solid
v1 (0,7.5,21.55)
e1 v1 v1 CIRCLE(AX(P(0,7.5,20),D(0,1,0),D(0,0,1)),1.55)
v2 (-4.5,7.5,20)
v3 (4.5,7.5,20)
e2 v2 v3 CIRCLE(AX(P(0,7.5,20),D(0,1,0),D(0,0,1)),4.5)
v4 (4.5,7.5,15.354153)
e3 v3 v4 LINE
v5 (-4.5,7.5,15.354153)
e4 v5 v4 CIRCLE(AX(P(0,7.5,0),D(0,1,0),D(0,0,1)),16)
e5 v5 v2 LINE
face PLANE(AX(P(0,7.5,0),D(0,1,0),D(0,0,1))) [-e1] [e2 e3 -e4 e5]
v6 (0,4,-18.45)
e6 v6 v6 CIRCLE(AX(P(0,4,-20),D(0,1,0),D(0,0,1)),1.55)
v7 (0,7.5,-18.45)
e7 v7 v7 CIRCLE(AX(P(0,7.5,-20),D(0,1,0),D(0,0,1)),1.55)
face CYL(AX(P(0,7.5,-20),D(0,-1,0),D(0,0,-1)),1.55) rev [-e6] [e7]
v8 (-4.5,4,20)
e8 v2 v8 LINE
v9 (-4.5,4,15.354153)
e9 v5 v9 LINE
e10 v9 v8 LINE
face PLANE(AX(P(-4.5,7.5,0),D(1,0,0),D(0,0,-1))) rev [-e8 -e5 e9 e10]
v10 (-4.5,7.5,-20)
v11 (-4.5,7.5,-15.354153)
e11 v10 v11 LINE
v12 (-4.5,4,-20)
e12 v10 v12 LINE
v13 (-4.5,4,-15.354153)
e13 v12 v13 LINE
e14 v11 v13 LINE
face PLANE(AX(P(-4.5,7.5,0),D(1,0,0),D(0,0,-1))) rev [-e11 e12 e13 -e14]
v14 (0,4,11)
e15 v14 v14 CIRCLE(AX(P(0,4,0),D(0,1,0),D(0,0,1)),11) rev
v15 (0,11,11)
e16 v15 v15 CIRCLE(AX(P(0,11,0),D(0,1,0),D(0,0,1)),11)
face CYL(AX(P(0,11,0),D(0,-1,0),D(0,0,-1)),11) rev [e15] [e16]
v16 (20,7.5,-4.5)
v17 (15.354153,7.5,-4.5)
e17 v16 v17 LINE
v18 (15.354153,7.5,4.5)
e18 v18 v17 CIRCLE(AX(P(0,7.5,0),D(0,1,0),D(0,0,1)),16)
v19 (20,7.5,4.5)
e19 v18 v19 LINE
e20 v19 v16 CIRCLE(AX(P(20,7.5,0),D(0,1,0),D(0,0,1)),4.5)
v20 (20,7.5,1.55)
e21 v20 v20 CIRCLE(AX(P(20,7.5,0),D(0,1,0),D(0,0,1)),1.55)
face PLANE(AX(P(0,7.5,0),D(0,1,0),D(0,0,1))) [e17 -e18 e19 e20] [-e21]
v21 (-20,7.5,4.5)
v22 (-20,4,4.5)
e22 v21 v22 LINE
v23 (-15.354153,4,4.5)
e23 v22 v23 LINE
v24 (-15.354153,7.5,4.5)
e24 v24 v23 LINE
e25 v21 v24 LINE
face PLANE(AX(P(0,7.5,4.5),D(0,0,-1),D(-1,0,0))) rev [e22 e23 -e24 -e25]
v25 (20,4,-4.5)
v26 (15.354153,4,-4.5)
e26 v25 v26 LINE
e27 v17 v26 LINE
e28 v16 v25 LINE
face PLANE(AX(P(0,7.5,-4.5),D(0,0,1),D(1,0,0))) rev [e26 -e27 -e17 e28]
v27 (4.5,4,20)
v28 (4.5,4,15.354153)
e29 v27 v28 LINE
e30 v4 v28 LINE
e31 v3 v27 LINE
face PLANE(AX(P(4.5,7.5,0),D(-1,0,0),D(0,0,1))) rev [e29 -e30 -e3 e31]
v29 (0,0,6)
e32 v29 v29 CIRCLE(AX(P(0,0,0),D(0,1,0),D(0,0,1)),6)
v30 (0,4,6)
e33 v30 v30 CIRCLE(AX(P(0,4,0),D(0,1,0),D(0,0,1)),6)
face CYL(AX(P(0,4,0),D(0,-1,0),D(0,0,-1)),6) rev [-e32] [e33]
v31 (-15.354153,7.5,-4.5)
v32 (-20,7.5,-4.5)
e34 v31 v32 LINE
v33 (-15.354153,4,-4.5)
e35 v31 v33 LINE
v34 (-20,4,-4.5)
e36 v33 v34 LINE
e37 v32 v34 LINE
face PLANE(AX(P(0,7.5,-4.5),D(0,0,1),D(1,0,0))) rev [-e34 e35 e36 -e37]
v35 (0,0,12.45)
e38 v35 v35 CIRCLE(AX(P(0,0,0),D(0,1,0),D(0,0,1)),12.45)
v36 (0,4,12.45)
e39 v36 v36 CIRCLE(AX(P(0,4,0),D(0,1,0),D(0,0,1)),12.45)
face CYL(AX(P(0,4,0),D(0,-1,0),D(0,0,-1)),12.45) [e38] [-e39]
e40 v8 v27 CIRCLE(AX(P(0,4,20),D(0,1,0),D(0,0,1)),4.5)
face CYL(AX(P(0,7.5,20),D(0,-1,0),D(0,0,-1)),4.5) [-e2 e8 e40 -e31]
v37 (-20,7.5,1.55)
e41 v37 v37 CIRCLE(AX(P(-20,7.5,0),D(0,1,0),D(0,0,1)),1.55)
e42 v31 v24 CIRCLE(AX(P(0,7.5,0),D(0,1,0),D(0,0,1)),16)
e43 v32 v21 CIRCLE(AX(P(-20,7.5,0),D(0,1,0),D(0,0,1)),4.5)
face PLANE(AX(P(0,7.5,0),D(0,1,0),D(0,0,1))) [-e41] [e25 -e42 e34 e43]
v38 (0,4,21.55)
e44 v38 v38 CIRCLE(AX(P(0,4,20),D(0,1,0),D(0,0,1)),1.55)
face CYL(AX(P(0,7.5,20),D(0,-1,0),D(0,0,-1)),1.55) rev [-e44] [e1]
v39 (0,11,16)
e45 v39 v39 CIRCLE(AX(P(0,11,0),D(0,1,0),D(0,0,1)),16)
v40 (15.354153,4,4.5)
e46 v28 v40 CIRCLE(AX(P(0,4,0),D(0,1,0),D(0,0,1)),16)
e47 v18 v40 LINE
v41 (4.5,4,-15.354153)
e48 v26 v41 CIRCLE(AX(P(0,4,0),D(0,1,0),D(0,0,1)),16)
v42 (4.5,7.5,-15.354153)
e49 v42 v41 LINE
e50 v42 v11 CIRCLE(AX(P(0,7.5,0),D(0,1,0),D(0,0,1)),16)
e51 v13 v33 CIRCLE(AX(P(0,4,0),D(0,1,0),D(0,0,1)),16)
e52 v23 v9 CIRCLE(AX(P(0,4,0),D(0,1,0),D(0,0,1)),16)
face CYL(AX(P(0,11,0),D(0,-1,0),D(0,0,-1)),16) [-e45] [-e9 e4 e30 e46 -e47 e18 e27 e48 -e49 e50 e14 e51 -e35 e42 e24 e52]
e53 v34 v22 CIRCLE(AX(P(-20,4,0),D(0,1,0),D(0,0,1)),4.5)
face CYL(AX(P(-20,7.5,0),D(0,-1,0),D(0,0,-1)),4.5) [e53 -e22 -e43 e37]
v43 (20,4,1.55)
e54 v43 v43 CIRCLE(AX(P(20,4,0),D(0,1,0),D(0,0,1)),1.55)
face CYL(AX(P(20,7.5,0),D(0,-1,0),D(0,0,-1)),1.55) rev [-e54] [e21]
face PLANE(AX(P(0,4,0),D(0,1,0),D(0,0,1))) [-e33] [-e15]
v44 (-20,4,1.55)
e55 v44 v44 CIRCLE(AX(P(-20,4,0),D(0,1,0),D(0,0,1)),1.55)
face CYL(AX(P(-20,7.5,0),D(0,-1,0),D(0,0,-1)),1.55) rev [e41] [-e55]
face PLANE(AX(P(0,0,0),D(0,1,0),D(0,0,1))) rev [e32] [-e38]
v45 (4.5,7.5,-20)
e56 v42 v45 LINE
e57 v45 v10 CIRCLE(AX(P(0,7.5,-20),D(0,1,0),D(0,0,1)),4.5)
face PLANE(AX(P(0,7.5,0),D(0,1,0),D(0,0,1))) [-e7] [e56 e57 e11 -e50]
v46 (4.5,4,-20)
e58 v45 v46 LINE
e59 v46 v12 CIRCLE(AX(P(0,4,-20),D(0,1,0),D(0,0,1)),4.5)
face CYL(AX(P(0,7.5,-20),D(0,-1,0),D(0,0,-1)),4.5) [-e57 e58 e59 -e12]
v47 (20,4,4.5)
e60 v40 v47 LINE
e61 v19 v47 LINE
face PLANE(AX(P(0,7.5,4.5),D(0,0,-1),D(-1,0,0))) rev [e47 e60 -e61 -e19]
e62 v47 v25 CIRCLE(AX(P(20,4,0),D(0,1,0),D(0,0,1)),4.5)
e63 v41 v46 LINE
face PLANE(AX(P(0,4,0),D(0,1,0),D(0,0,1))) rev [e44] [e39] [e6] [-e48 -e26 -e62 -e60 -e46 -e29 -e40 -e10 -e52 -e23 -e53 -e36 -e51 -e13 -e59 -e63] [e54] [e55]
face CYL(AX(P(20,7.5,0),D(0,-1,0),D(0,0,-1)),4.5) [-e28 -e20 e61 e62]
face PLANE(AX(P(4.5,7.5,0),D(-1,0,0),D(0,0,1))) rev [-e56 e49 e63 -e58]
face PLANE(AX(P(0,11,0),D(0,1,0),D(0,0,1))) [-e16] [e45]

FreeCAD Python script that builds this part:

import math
import FreeCAD as App
import Part
import Sketcher

V = App.Vector

doc = App.newDocument("Part")
body = doc.addObject("PartDesign::Body", "Body")

sketch1 = doc.addObject("Sketcher::SketchObject", "Sketch")
body.addObject(sketch1)
sketch1.AttachmentSupport = (doc.XZ_Plane, [""])
sketch1.MapMode = "FlatFace"
sketch1.addGeometry([
    Part.Circle(V(0, 0, 0), V(0, 0, 1), 12),
    Part.Circle(V(0, 0, 0), V(0, 0, 1), 6),
], False)
sketch1.addConstraint([
    Sketcher.Constraint("Coincident", 0, 3, -1, 1),
    Sketcher.Constraint("Coincident", 1, 3, -1, 1),
    Sketcher.Constraint("Diameter", 1, 12.0),
    Sketcher.Constraint("Diameter", 0, 24.9),
])
pad1 = doc.addObject("PartDesign::Pad", "Pad")
body.addObject(pad1)
pad1.Profile = sketch1
pad1.Length = 4
pad1.Reversed = True

sketch2 = doc.addObject("Sketcher::SketchObject", "Sketch001")
body.addObject(sketch2)
sketch2.AttachmentSupport = (doc.XZ_Plane, [""])
sketch2.MapMode = "FlatFace"
sketch2.AttachmentOffset = App.Placement(V(0, 0, -4), App.Rotation())
sketch2.addGeometry([
    Part.Circle(V(0, 0, 0), V(0, 0, 1), 16),
    Part.Circle(V(0, 0, 0), V(0, 0, 1), 11),
], False)
sketch2.addConstraint([
    Sketcher.Constraint("Coincident", 0, 3, -1, 1),
    Sketcher.Constraint("Coincident", 1, 3, -1, 1),
    Sketcher.Constraint("Diameter", 0, 32.0),
    Sketcher.Constraint("Diameter", 1, 22.0),
])
pad2 = doc.addObject("PartDesign::Pad", "Pad001")
body.addObject(pad2)
pad2.Profile = sketch2
pad2.Length = 7
pad2.Reversed = True

sketch3 = doc.addObject("Sketcher::SketchObject", "Sketch002")
body.addObject(sketch3)
sketch3.AttachmentSupport = (doc.XZ_Plane, [""])
sketch3.MapMode = "FlatFace"
sketch3.AttachmentOffset = App.Placement(V(0, 0, -4), App.Rotation())
sketch3.addGeometry([
    Part.LineSegment(V(-4.5, -20, 0), V(-4.5, -15.4, 0)),
    Part.ArcOfCircle(Part.Circle(V(0, 0, 0), V(0, 0, 1), 16), math.radians(-106), math.radians(-74)),
    Part.LineSegment(V(4.5, -15.4, 0), V(4.5, -20, 0)),
    Part.ArcOfCircle(Part.Circle(V(0, -20, 0), V(0, 0, 1), 4.5), math.radians(180), math.radians(360)),
    Part.Circle(V(0, -20, 0), V(0, 0, 1), 1.6),
], False)
sketch3.addConstraint([
    Sketcher.Constraint("Coincident", 0, 2, 1, 1),
    Sketcher.Constraint("Coincident", 1, 2, 2, 1),
    Sketcher.Constraint("Tangent", 2, 2, 3, 2),
    Sketcher.Constraint("Tangent", 3, 1, 0, 1),
    Sketcher.Constraint("Vertical", 0),
    Sketcher.Constraint("Vertical", 2),
    Sketcher.Constraint("Coincident", 1, 3, -1, 1),
    Sketcher.Constraint("Coincident", 4, 3, 3, 3),
    Sketcher.Constraint("PointOnObject", 3, 3, -2),
    Sketcher.Constraint("Radius", 1, 16.0),
    Sketcher.Constraint("Diameter", 4, 3.1),
    Sketcher.Constraint("Radius", 3, 4.5),
    Sketcher.Constraint("DistanceY", 3, 3, -1, 1, 20.0),
])
pad3 = doc.addObject("PartDesign::Pad", "Pad002")
body.addObject(pad3)
pad3.Profile = sketch3
pad3.Length = 3.5
pad3.Reversed = True
doc.recompute()

polarpattern = doc.addObject("PartDesign::PolarPattern", "PolarPattern")
body.addObject(polarpattern)
polarpattern.Originals = [pad3]
polarpattern.Axis = (doc.Y_Axis, [""])
polarpattern.Angle = 360
polarpattern.Occurrences = 4
body.Tip = polarpattern

doc.recompute()
